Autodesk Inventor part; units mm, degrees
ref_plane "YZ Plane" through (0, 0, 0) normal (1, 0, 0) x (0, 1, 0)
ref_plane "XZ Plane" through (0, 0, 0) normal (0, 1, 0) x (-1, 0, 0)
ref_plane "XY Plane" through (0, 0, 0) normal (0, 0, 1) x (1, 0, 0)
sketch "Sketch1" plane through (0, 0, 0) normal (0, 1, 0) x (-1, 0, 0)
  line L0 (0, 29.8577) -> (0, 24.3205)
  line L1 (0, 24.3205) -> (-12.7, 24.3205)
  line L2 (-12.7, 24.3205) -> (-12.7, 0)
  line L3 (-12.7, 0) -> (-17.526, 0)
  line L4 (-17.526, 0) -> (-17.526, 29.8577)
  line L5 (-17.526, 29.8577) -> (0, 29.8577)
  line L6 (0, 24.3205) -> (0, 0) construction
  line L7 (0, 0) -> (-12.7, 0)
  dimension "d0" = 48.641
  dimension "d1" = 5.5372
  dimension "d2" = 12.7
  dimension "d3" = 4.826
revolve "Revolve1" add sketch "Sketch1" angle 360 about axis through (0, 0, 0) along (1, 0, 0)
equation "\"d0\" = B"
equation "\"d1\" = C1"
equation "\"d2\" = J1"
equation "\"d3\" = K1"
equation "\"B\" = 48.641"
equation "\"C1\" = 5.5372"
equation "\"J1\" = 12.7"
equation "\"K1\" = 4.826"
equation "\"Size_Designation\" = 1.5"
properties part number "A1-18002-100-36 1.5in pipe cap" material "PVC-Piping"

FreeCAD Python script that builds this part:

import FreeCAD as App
import Part
import Sketcher

V = App.Vector
Q = App.Units.Quantity


def add_polygon(sketch, points):
    """Adds a closed chain of lines whose ends are joined by coincident constraints."""
    first, n = sketch.GeometryCount, len(points)
    for a, b in zip(points, points[1:] + points[:1]):
        sketch.addGeometry(Part.LineSegment(App.Vector(*a, 0), App.Vector(*b, 0)), False)
    for i in range(n):
        sketch.addConstraint(Sketcher.Constraint("Coincident", first + i, 2, first + (i + 1) % n, 1))

doc = App.newDocument("Part")
body = doc.addObject("PartDesign::Body", "Body")

sketch1 = body.newObject("Sketcher::SketchObject", "Sketch")
sketch1.AttachmentSupport = (doc.getObject("XZ_Plane"), [""])
sketch1.MapMode = "FlatFace"
add_polygon(sketch1, [(0, 24.3), (0, 29.9), (17.5, 29.9), (17.5, 0), (12.7, 0), (12.7, 24.3)])
sketch1.addConstraint(Sketcher.Constraint("Vertical", 0))
sketch1.addConstraint(Sketcher.Constraint("Horizontal", 1))
sketch1.addConstraint(Sketcher.Constraint("Vertical", 2))
sketch1.addConstraint(Sketcher.Constraint("Horizontal", 3))
sketch1.addConstraint(Sketcher.Constraint("Vertical", 4))
sketch1.addConstraint(Sketcher.Constraint("Horizontal", 5))
sketch1.addConstraint(Sketcher.Constraint("PointOnObject", 0, 2, -2))
sketch1.addConstraint(Sketcher.Constraint("PointOnObject", 2, 2, -1))
sketch1.addConstraint(Sketcher.Constraint("DistanceX", 5, 2, 5, 1, Q("0.5 in")))
sketch1.addConstraint(Sketcher.Constraint("DistanceX", 3, 2, 3, 1, Q("0.19 in")))
sketch1.addConstraint(Sketcher.Constraint("DistanceY", 0, 1, 0, 2, Q("0.218 in")))
sketch1.addConstraint(Sketcher.Constraint("DistanceY", 2, 2, 2, 1, Q("1.1755 in")))
revolution = body.newObject("PartDesign::Revolution", "Revolution")
revolution.Profile = sketch1
revolution.ReferenceAxis = (sketch1, ["H_Axis"])
revolution.Angle = 360

doc.recompute()
